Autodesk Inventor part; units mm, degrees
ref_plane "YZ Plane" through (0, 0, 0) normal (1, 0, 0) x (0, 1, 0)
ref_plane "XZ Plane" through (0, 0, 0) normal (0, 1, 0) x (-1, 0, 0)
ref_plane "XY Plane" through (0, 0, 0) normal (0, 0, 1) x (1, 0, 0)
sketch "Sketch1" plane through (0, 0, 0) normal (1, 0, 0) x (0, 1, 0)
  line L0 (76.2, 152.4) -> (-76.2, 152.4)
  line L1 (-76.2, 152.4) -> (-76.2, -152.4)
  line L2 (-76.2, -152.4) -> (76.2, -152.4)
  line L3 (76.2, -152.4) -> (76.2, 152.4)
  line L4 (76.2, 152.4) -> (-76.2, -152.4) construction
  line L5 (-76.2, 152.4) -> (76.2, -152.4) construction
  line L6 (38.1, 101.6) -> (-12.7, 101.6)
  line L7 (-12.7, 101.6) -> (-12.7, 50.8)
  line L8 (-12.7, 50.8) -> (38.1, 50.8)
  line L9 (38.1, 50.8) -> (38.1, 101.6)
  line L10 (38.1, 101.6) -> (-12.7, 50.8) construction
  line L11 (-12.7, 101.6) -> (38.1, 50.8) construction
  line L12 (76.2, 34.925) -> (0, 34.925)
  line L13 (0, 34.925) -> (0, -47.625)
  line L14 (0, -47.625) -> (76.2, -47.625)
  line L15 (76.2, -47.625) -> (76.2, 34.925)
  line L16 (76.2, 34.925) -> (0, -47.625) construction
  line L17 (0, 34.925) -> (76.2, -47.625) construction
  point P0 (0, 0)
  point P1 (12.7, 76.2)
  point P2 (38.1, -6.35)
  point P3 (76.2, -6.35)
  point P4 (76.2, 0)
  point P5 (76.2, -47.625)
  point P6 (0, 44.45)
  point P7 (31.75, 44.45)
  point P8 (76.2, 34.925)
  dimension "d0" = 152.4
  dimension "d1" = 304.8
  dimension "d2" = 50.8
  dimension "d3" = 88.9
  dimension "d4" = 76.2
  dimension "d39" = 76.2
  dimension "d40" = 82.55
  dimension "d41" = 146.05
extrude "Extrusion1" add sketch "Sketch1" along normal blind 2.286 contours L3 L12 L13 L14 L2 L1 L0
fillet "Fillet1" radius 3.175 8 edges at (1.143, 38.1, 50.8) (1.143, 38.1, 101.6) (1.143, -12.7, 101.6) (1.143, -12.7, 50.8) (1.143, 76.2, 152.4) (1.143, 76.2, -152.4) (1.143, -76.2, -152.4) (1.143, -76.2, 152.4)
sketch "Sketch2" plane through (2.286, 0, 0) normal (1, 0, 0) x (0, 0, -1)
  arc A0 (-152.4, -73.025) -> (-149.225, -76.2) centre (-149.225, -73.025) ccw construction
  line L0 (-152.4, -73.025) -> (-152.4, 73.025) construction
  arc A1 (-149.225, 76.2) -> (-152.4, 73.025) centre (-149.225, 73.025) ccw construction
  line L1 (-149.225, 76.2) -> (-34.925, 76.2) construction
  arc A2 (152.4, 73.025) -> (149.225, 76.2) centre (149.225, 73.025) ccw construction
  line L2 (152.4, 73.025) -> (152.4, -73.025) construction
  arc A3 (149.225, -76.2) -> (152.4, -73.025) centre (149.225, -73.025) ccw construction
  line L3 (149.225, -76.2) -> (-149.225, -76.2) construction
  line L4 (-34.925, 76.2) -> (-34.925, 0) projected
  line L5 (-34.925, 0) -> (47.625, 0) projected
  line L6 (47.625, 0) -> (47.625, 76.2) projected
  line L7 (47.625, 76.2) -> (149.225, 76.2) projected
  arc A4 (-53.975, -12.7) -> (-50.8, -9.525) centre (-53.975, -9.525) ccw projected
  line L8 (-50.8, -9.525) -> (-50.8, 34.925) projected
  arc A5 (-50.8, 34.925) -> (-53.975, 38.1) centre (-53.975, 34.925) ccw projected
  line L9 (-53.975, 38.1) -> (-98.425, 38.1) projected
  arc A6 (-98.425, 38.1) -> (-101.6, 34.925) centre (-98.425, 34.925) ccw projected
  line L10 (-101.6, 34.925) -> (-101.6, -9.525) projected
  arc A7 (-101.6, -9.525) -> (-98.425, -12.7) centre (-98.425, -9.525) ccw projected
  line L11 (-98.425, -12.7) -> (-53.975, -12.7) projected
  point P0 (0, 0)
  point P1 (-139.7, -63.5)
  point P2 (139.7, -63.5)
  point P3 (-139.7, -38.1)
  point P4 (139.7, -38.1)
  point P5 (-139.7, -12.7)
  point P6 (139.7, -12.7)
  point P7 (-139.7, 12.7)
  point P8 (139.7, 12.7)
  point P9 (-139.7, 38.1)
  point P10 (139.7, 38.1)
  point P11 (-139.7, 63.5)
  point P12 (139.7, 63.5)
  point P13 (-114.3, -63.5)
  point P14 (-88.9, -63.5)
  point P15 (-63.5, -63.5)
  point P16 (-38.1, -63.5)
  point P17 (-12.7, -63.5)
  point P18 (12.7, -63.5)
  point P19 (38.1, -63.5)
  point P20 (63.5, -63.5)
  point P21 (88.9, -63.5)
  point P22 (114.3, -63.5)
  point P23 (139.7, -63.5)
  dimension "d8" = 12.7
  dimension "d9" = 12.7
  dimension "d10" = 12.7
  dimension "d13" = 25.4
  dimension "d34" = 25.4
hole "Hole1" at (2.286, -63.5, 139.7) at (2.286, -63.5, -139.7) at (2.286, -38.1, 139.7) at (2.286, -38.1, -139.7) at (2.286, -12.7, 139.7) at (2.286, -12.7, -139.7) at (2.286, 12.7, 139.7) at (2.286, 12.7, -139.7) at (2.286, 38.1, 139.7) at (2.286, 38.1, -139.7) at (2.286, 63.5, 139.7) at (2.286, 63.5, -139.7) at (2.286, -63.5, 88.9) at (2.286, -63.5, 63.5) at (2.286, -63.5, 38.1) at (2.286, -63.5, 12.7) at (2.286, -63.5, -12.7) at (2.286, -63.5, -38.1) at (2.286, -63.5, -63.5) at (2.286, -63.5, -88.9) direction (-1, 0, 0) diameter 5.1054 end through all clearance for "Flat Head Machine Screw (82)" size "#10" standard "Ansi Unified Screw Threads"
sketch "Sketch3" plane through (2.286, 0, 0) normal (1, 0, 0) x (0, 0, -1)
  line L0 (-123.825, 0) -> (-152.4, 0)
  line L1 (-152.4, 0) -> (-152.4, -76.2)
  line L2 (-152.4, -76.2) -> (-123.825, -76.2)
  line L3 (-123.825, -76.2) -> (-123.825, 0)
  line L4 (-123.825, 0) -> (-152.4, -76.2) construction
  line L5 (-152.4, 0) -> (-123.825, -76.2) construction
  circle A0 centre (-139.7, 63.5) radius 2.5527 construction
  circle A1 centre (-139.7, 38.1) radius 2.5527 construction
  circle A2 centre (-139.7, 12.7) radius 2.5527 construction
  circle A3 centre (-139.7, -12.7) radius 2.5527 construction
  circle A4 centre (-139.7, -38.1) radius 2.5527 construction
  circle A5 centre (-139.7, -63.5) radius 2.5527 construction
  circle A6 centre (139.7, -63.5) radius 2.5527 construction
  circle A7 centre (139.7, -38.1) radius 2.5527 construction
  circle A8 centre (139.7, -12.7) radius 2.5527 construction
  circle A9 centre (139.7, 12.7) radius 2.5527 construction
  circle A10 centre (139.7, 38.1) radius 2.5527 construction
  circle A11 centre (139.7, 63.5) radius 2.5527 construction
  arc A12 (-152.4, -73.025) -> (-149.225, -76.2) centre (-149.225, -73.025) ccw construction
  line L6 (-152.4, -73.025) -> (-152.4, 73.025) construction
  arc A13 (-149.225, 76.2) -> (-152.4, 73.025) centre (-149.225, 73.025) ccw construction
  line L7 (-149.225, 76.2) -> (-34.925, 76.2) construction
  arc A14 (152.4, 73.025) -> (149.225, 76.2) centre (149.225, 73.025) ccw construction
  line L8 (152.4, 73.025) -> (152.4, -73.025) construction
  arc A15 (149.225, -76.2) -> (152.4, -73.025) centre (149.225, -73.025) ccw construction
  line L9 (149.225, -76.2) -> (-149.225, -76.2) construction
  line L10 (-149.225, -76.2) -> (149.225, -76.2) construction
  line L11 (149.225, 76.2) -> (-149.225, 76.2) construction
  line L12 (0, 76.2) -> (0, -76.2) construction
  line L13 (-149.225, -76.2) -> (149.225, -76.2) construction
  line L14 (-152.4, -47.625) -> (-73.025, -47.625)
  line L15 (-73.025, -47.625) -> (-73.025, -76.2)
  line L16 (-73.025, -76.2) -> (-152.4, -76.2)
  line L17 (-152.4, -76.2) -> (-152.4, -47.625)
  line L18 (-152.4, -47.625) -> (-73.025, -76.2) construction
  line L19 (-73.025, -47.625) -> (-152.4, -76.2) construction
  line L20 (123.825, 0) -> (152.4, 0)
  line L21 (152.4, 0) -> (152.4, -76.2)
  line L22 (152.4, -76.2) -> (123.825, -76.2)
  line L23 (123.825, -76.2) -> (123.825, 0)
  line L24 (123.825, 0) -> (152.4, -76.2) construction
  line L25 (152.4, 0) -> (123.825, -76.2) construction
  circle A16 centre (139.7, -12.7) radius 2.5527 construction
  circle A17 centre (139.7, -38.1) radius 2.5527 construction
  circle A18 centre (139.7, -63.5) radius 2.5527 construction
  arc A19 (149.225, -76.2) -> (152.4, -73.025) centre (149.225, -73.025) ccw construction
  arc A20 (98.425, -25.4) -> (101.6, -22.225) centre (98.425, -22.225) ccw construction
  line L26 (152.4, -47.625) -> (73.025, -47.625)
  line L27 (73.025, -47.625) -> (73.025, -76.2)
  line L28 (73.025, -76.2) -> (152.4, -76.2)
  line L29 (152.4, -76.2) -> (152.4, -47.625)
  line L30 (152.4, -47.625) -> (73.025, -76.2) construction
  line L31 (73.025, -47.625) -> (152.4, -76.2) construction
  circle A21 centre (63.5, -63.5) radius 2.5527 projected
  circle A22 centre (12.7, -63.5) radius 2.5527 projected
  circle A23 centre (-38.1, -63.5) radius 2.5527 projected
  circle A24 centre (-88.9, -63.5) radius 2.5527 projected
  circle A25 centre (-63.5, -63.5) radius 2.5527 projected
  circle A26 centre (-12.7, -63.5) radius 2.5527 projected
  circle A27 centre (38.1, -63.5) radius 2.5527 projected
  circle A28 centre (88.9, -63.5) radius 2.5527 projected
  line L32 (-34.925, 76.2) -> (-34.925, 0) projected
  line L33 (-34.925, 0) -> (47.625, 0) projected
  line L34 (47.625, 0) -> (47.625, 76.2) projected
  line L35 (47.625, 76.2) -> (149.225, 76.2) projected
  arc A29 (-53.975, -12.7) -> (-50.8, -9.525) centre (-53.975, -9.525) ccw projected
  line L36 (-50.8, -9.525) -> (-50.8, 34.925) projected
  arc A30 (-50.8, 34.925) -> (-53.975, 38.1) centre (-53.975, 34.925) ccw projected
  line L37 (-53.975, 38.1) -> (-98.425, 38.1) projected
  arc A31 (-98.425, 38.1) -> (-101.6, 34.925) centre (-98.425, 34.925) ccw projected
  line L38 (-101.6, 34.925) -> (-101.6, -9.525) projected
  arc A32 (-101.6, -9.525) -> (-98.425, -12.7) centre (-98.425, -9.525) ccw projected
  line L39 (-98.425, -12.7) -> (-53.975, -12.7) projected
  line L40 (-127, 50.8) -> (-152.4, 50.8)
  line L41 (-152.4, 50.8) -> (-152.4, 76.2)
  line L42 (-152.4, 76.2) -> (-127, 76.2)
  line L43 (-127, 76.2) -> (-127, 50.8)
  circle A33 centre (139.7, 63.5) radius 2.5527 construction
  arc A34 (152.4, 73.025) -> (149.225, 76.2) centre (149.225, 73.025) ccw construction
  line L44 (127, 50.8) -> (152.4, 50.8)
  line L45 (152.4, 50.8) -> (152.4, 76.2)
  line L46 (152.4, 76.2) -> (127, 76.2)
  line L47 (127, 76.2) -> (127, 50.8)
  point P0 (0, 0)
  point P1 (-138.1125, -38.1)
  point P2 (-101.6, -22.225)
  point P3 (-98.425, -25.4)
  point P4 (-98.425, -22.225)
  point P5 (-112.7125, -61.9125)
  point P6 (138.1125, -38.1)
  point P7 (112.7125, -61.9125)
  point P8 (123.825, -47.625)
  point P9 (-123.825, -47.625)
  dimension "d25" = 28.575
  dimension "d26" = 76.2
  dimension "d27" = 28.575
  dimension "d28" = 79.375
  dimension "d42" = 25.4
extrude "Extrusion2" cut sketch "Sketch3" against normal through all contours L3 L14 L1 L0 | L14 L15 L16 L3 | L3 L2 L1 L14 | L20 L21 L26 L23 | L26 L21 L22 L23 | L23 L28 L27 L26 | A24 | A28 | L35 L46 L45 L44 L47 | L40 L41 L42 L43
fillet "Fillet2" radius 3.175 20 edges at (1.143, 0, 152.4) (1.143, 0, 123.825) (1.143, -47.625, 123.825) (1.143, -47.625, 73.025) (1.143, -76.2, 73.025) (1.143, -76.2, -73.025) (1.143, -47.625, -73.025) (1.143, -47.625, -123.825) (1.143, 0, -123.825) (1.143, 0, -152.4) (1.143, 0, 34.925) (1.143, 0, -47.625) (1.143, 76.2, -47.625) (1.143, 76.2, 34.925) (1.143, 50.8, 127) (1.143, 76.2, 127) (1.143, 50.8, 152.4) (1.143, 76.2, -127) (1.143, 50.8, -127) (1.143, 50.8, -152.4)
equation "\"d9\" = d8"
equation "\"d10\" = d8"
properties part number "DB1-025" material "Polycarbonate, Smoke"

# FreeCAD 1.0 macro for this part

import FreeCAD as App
import Part
import Sketcher

V = App.Vector
Q = App.Units.Quantity


def edges_at(feature, points):
    """Names of the edges that pass closest to the given points."""
    edges = feature.Shape.Edges
    near = lambda p: min(range(len(edges)), key=lambda i: edges[i].distToShape(Part.Vertex(*p))[0])
    return sorted({f"Edge{near(p) + 1}" for p in points})

doc = App.newDocument("Part")
body = doc.addObject("PartDesign::Body", "Body")

# Sketch on YZ plane
sketch1 = doc.addObject("Sketcher::SketchObject", "Sketch")
body.addObject(sketch1)
sketch1.AttachmentSupport = (doc.YZ_Plane, [""])
sketch1.MapMode = "FlatFace"
sketch1.addGeometry([
    Part.LineSegment(V(76, 35, 0), V(76, 152, 0)),  # 0
    Part.LineSegment(V(76, 152, 0), V(-76, 152, 0)),  # 1
    Part.LineSegment(V(-76, 152, 0), V(-76, -152, 0)),  # 2
    Part.LineSegment(V(-76, -152, 0), V(76, -152, 0)),  # 3
    Part.LineSegment(V(76, -152, 0), V(76, -48, 0)),  # 4
    Part.LineSegment(V(76, -48, 0), V(0, -48, 0)),  # 5
    Part.LineSegment(V(0, -48, 0), V(0, 35, 0)),  # 6
    Part.LineSegment(V(0, 35, 0), V(76, 35, 0)),  # 7
    Part.LineSegment(V(-13, 102, 0), V(38, 102, 0)),  # 8
    Part.LineSegment(V(38, 102, 0), V(38, 51, 0)),  # 9
    Part.LineSegment(V(38, 51, 0), V(-13, 51, 0)),  # 10
    Part.LineSegment(V(-13, 51, 0), V(-13, 102, 0)),  # 11
], False)
sketch1.addConstraint([
    Sketcher.Constraint("Coincident", 0, 2, 1, 1),
    Sketcher.Constraint("Coincident", 1, 2, 2, 1),
    Sketcher.Constraint("Coincident", 2, 2, 3, 1),
    Sketcher.Constraint("Coincident", 3, 2, 4, 1),
    Sketcher.Constraint("Coincident", 4, 2, 5, 1),
    Sketcher.Constraint("Coincident", 5, 2, 6, 1),
    Sketcher.Constraint("Coincident", 6, 2, 7, 1),
    Sketcher.Constraint("Coincident", 7, 2, 0, 1),
    Sketcher.Constraint("Coincident", 8, 2, 9, 1),
    Sketcher.Constraint("Coincident", 9, 2, 10, 1),
    Sketcher.Constraint("Coincident", 10, 2, 11, 1),
    Sketcher.Constraint("Coincident", 11, 2, 8, 1),
    Sketcher.Constraint("Vertical", 0),
    Sketcher.Constraint("Horizontal", 1),
    Sketcher.Constraint("Vertical", 2),
    Sketcher.Constraint("Horizontal", 3),
    Sketcher.Constraint("Vertical", 4),
    Sketcher.Constraint("Horizontal", 5),
    Sketcher.Constraint("Vertical", 6),
    Sketcher.Constraint("Horizontal", 7),
    Sketcher.Constraint("Horizontal", 8),
    Sketcher.Constraint("Vertical", 9),
    Sketcher.Constraint("Horizontal", 10),
    Sketcher.Constraint("Vertical", 11),
    Sketcher.Constraint("Symmetric", 0, 2, 2, 2, -1, 1),
    Sketcher.Constraint("PointOnObject", 5, 2, -2),
    Sketcher.Constraint("Vertical", 0, 2, 3, 2),
    Sketcher.Constraint("Equal", 10, 9),
    Sketcher.Constraint("DistanceX", 1, 2, 1, 1, Q("6 in")),
    Sketcher.Constraint("DistanceX", 8, 1, 8, 2, Q("2 in")),
    Sketcher.Constraint("DistanceY", 2, 2, 2, 1, Q("12 in")),
    Sketcher.Constraint("DistanceY", -1, 1, 9, 2, Q("2 in")),
    Sketcher.Constraint("DistanceY", 6, 1, 6, 2, Q("3.25 in")),
    Sketcher.Constraint("DistanceX", 10, 2, 7, 2, Q("3.5 in")),
    Sketcher.Constraint("DistanceY", 0, 1, 0, 2, Q("4.625 in")),
])
pad1 = doc.addObject("PartDesign::Pad", "Pad")
body.addObject(pad1)
pad1.Profile = sketch1
pad1.Length = Q("0.09 in")
doc.recompute()

fillet = doc.addObject("PartDesign::Fillet", "Fillet")
body.addObject(fillet)
fillet.Base = (pad1, edges_at(pad1, [
    (1.143, 38.1, 50.8),
    (1.143, 38.1, 101.6),
    (1.143, -12.7, 101.6),
    (1.143, -12.7, 50.8),
    (1.143, 76.2, 152.4),
    (1.143, 76.2, -152.4),
    (1.143, -76.2, -152.4),
    (1.143, -76.2, 152.4),
]))
fillet.Radius = Q("0.125 in")

# Sketch on YZ plane
sketch2 = doc.addObject("Sketcher::SketchObject", "Sketch001")
body.addObject(sketch2)
sketch2.AttachmentSupport = (doc.YZ_Plane, [""])
sketch2.MapMode = "FlatFace"
sketch2.AttachmentOffset = App.Placement(V(0, 0, 0.09 * 25.4), App.Rotation())
sketch2.addGeometry([
    Part.Circle(V(-63.5, 139.7, 0), V(0, 0, 1), 2.6),  # 0
    Part.Circle(V(-63.5, -139.7, 0), V(0, 0, 1), 2.6),  # 1
    Part.Circle(V(-38.1, 139.7, 0), V(0, 0, 1), 2.6),  # 2
    Part.Circle(V(-38.1, -139.7, 0), V(0, 0, 1), 2.6),  # 3
    Part.Circle(V(-12.7, 139.7, 0), V(0, 0, 1), 2.6),  # 4
    Part.Circle(V(-12.7, -139.7, 0), V(0, 0, 1), 2.6),  # 5
    Part.Circle(V(12.7, 139.7, 0), V(0, 0, 1), 2.6),  # 6
    Part.Circle(V(12.7, -139.7, 0), V(0, 0, 1), 2.6),  # 7
    Part.Circle(V(38.1, 139.7, 0), V(0, 0, 1), 2.6),  # 8
    Part.Circle(V(38.1, -139.7, 0), V(0, 0, 1), 2.6),  # 9
    Part.Circle(V(63.5, 139.7, 0), V(0, 0, 1), 2.6),  # 10
    Part.Circle(V(63.5, -139.7, 0), V(0, 0, 1), 2.6),  # 11
    Part.Circle(V(-63.5, 88.9, 0), V(0, 0, 1), 2.6),  # 12
    Part.Circle(V(-63.5, 63.5, 0), V(0, 0, 1), 2.6),  # 13
    Part.Circle(V(-63.5, 38.1, 0), V(0, 0, 1), 2.6),  # 14
    Part.Circle(V(-63.5, 12.7, 0), V(0, 0, 1), 2.6),  # 15
    Part.Circle(V(-63.5, -12.7, 0), V(0, 0, 1), 2.6),  # 16
    Part.Circle(V(-63.5, -38.1, 0), V(0, 0, 1), 2.6),  # 17
    Part.Circle(V(-63.5, -63.5, 0), V(0, 0, 1), 2.6),  # 18
    Part.Circle(V(-63.5, -88.9, 0), V(0, 0, 1), 2.6),  # 19
], False)
sketch2.addConstraint([
    Sketcher.Constraint("Equal", 0, 1),
    Sketcher.Constraint("Equal", 1, 2),
    Sketcher.Constraint("Equal", 2, 3),
    Sketcher.Constraint("Equal", 3, 4),
    Sketcher.Constraint("Equal", 4, 5),
    Sketcher.Constraint("Equal", 5, 6),
    Sketcher.Constraint("Equal", 6, 7),
    Sketcher.Constraint("Equal", 7, 8),
    Sketcher.Constraint("Equal", 8, 9),
    Sketcher.Constraint("Equal", 9, 10),
    Sketcher.Constraint("Equal", 10, 11),
    Sketcher.Constraint("Equal", 11, 12),
    Sketcher.Constraint("Equal", 12, 13),
    Sketcher.Constraint("Equal", 13, 14),
    Sketcher.Constraint("Equal", 14, 15),
    Sketcher.Constraint("Equal", 15, 16),
    Sketcher.Constraint("Equal", 16, 17),
    Sketcher.Constraint("Equal", 17, 18),
    Sketcher.Constraint("Equal", 18, 19),
    Sketcher.Constraint("Symmetric", 5, 3, 6, 3, -1, 1),
    Sketcher.Constraint("Symmetric", 4, 3, 7, 3, -1, 1),
    Sketcher.Constraint("Symmetric", 3, 3, 8, 3, -1, 1),
    Sketcher.Constraint("Symmetric", 2, 3, 9, 3, -1, 1),
    Sketcher.Constraint("Symmetric", 1, 3, 10, 3, -1, 1),
    Sketcher.Constraint("Symmetric", 0, 3, 11, 3, -1, 1),
    Sketcher.Constraint("Symmetric", 4, 3, 6, 3, -2),
    Sketcher.Constraint("Symmetric", 2, 3, 8, 3, -2),
    Sketcher.Constraint("Symmetric", 0, 3, 10, 3, -2),
    Sketcher.Constraint("Symmetric", 15, 3, 16, 3, -1),
    Sketcher.Constraint("Symmetric", 14, 3, 17, 3, -1),
    Sketcher.Constraint("Symmetric", 13, 3, 18, 3, -1),
    Sketcher.Constraint("Symmetric", 12, 3, 19, 3, -1),
    Sketcher.Constraint("Horizontal", 0, 3, 2, 3),
    Sketcher.Constraint("Horizontal", 2, 3, 4, 3),
    Sketcher.Constraint("Vertical", 1, 3, 12, 3),
    Sketcher.Constraint("Vertical", 12, 3, 13, 3),
    Sketcher.Constraint("Vertical", 13, 3, 14, 3),
    Sketcher.Constraint("Vertical", 14, 3, 15, 3),
    Sketcher.Constraint("Diameter", 0, Q("0.201 in")),
    Sketcher.Constraint("DistanceY", 1, 3, 0, 3, Q("11 in")),
    Sketcher.Constraint("DistanceX", 0, 3, 2, 3, Q("1 in")),
    Sketcher.Constraint("DistanceX", 2, 3, 4, 3, Q("1 in")),
    Sketcher.Constraint("DistanceX", 4, 3, 6, 3, Q("1 in")),
    Sketcher.Constraint("DistanceY", 12, 3, 0, 3, Q("2 in")),
    Sketcher.Constraint("DistanceY", 13, 3, 12, 3, Q("1 in")),
    Sketcher.Constraint("DistanceY", 14, 3, 13, 3, Q("1 in")),
    Sketcher.Constraint("DistanceY", 15, 3, 14, 3, Q("1 in")),
])
doc.recompute()
hole = doc.addObject("PartDesign::Hole", "Hole")
body.addObject(hole)
hole.Profile = sketch2
hole.ThreadType = "None"
hole.Diameter = Q("0.201 in")
hole.DepthType = "ThroughAll"

# Sketch on YZ plane
sketch3 = doc.addObject("Sketcher::SketchObject", "Sketch002")
body.addObject(sketch3)
sketch3.AttachmentSupport = (doc.YZ_Plane, [""])
sketch3.MapMode = "FlatFace"
sketch3.AttachmentOffset = App.Placement(V(0, 0, 0.09 * 25.4), App.Rotation())
sketch3.addGeometry([
    Part.LineSegment(V(-48, 124, 0), V(0, 124, 0)),  # 0
    Part.LineSegment(V(0, 124, 0), V(0, 152, 0)),  # 1
    Part.LineSegment(V(0, 152, 0), V(-76, 152, 0)),  # 2
    Part.LineSegment(V(-76, 152, 0), V(-76, 73, 0)),  # 3
    Part.LineSegment(V(-76, 73, 0), V(-48, 73, 0)),  # 4
    Part.LineSegment(V(-48, 73, 0), V(-48, 124, 0)),  # 5
    Part.LineSegment(V(0, -152, 0), V(0, -124, 0)),  # 6
    Part.LineSegment(V(0, -124, 0), V(-48, -124, 0)),  # 7
    Part.LineSegment(V(-48, -124, 0), V(-48, -73, 0)),  # 8
    Part.LineSegment(V(-48, -73, 0), V(-76, -73, 0)),  # 9
    Part.LineSegment(V(-76, -73, 0), V(-76, -152, 0)),  # 10
    Part.LineSegment(V(-76, -152, 0), V(0, -152, 0)),  # 11
    Part.LineSegment(V(76, -152, 0), V(76, -127, 0)),  # 12
    Part.LineSegment(V(76, -127, 0), V(51, -127, 0)),  # 13
    Part.LineSegment(V(51, -127, 0), V(51, -152, 0)),  # 14
    Part.LineSegment(V(51, -152, 0), V(76, -152, 0)),  # 15
    Part.LineSegment(V(51, 152, 0), V(51, 127, 0)),  # 16
    Part.LineSegment(V(51, 127, 0), V(76, 127, 0)),  # 17
    Part.LineSegment(V(76, 127, 0), V(76, 152, 0)),  # 18
    Part.LineSegment(V(76, 152, 0), V(51, 152, 0)),  # 19
], False)
sketch3.addConstraint([
    Sketcher.Constraint("Coincident", 0, 2, 1, 1),
    Sketcher.Constraint("Coincident", 1, 2, 2, 1),
    Sketcher.Constraint("Coincident", 2, 2, 3, 1),
    Sketcher.Constraint("Coincident", 3, 2, 4, 1),
    Sketcher.Constraint("Coincident", 4, 2, 5, 1),
    Sketcher.Constraint("Coincident", 5, 2, 0, 1),
    Sketcher.Constraint("Coincident", 6, 2, 7, 1),
    Sketcher.Constraint("Coincident", 7, 2, 8, 1),
    Sketcher.Constraint("Coincident", 8, 2, 9, 1),
    Sketcher.Constraint("Coincident", 9, 2, 10, 1),
    Sketcher.Constraint("Coincident", 10, 2, 11, 1),
    Sketcher.Constraint("Coincident", 11, 2, 6, 1),
    Sketcher.Constraint("Coincident", 12, 2, 13, 1),
    Sketcher.Constraint("Coincident", 13, 2, 14, 1),
    Sketcher.Constraint("Coincident", 14, 2, 15, 1),
    Sketcher.Constraint("Coincident", 15, 2, 12, 1),
    Sketcher.Constraint("Coincident", 16, 2, 17, 1),
    Sketcher.Constraint("Coincident", 17, 2, 18, 1),
    Sketcher.Constraint("Coincident", 18, 2, 19, 1),
    Sketcher.Constraint("Coincident", 19, 2, 16, 1),
    Sketcher.Constraint("Horizontal", 0),
    Sketcher.Constraint("Vertical", 1),
    Sketcher.Constraint("Horizontal", 2),
    Sketcher.Constraint("Vertical", 3),
    Sketcher.Constraint("Horizontal", 4),
    Sketcher.Constraint("Vertical", 5),
    Sketcher.Constraint("Vertical", 6),
    Sketcher.Constraint("Horizontal", 7),
    Sketcher.Constraint("Vertical", 8),
    Sketcher.Constraint("Horizontal", 9),
    Sketcher.Constraint("Vertical", 10),
    Sketcher.Constraint("Horizontal", 11),
    Sketcher.Constraint("Vertical", 12),
    Sketcher.Constraint("Horizontal", 13),
    Sketcher.Constraint("Vertical", 14),
    Sketcher.Constraint("Horizontal", 15),
    Sketcher.Constraint("Vertical", 16),
    Sketcher.Constraint("Horizontal", 17),
    Sketcher.Constraint("Vertical", 18),
    Sketcher.Constraint("Horizontal", 19),
    Sketcher.Constraint("Symmetric", 0, 2, 6, 2, -1, 1),
    Sketcher.Constraint("Symmetric", 2, 2, 15, 2, -1, 1),
    Sketcher.Constraint("Symmetric", 10, 2, 18, 2, -1, 1),
    Sketcher.Constraint("Symmetric", 10, 2, 15, 2, -2),
    Sketcher.Constraint("Symmetric", 4, 2, 8, 2, -1),
    Sketcher.Constraint("Symmetric", 13, 2, 16, 2, -1),
    Sketcher.Constraint("PointOnObject", 0, 2, -2),
    Sketcher.Constraint("Equal", 9, 1),
    Sketcher.Constraint("Equal", 19, 12),
    Sketcher.Constraint("DistanceX", 2, 2, 2, 1, Q("3 in")),
    Sketcher.Constraint("DistanceX", 13, 2, 13, 1, Q("1 in")),
    Sketcher.Constraint("DistanceX", 4, 1, 4, 2, Q("1.125 in")),
    Sketcher.Constraint("DistanceY", 3, 2, 3, 1, Q("3.125 in")),
    Sketcher.Constraint("DistanceY", -1, 1, 1, 2, Q("6 in")),
])
pocket1 = doc.addObject("PartDesign::Pocket", "Pocket")
body.addObject(pocket1)
pocket1.Profile = sketch3
pocket1.Type = "ThroughAll"
doc.recompute()

fillet2 = doc.addObject("PartDesign::Fillet", "Fillet001")
body.addObject(fillet2)
fillet2.Base = (pocket1, edges_at(pocket1, [
    (1.143, 0, 152.4),
    (1.143, 0, 123.825),
    (1.143, -47.625, 123.825),
    (1.143, -47.625, 73.025),
    (1.143, -76.2, 73.025),
    (1.143, -76.2, -73.025),
    (1.143, -47.625, -73.025),
    (1.143, -47.625, -123.825),
    (1.143, 0, -123.825),
    (1.143, 0, -152.4),
    (1.143, 0, 34.925),
    (1.143, 0, -47.625),
    (1.143, 76.2, -47.625),
    (1.143, 76.2, 34.925),
    (1.143, 50.8, 127),
    (1.143, 76.2, 127),
    (1.143, 50.8, 152.4),
    (1.143, 76.2, -127),
    (1.143, 50.8, -127),
    (1.143, 50.8, -152.4),
]))
fillet2.Radius = Q("0.125 in")

doc.recompute()
